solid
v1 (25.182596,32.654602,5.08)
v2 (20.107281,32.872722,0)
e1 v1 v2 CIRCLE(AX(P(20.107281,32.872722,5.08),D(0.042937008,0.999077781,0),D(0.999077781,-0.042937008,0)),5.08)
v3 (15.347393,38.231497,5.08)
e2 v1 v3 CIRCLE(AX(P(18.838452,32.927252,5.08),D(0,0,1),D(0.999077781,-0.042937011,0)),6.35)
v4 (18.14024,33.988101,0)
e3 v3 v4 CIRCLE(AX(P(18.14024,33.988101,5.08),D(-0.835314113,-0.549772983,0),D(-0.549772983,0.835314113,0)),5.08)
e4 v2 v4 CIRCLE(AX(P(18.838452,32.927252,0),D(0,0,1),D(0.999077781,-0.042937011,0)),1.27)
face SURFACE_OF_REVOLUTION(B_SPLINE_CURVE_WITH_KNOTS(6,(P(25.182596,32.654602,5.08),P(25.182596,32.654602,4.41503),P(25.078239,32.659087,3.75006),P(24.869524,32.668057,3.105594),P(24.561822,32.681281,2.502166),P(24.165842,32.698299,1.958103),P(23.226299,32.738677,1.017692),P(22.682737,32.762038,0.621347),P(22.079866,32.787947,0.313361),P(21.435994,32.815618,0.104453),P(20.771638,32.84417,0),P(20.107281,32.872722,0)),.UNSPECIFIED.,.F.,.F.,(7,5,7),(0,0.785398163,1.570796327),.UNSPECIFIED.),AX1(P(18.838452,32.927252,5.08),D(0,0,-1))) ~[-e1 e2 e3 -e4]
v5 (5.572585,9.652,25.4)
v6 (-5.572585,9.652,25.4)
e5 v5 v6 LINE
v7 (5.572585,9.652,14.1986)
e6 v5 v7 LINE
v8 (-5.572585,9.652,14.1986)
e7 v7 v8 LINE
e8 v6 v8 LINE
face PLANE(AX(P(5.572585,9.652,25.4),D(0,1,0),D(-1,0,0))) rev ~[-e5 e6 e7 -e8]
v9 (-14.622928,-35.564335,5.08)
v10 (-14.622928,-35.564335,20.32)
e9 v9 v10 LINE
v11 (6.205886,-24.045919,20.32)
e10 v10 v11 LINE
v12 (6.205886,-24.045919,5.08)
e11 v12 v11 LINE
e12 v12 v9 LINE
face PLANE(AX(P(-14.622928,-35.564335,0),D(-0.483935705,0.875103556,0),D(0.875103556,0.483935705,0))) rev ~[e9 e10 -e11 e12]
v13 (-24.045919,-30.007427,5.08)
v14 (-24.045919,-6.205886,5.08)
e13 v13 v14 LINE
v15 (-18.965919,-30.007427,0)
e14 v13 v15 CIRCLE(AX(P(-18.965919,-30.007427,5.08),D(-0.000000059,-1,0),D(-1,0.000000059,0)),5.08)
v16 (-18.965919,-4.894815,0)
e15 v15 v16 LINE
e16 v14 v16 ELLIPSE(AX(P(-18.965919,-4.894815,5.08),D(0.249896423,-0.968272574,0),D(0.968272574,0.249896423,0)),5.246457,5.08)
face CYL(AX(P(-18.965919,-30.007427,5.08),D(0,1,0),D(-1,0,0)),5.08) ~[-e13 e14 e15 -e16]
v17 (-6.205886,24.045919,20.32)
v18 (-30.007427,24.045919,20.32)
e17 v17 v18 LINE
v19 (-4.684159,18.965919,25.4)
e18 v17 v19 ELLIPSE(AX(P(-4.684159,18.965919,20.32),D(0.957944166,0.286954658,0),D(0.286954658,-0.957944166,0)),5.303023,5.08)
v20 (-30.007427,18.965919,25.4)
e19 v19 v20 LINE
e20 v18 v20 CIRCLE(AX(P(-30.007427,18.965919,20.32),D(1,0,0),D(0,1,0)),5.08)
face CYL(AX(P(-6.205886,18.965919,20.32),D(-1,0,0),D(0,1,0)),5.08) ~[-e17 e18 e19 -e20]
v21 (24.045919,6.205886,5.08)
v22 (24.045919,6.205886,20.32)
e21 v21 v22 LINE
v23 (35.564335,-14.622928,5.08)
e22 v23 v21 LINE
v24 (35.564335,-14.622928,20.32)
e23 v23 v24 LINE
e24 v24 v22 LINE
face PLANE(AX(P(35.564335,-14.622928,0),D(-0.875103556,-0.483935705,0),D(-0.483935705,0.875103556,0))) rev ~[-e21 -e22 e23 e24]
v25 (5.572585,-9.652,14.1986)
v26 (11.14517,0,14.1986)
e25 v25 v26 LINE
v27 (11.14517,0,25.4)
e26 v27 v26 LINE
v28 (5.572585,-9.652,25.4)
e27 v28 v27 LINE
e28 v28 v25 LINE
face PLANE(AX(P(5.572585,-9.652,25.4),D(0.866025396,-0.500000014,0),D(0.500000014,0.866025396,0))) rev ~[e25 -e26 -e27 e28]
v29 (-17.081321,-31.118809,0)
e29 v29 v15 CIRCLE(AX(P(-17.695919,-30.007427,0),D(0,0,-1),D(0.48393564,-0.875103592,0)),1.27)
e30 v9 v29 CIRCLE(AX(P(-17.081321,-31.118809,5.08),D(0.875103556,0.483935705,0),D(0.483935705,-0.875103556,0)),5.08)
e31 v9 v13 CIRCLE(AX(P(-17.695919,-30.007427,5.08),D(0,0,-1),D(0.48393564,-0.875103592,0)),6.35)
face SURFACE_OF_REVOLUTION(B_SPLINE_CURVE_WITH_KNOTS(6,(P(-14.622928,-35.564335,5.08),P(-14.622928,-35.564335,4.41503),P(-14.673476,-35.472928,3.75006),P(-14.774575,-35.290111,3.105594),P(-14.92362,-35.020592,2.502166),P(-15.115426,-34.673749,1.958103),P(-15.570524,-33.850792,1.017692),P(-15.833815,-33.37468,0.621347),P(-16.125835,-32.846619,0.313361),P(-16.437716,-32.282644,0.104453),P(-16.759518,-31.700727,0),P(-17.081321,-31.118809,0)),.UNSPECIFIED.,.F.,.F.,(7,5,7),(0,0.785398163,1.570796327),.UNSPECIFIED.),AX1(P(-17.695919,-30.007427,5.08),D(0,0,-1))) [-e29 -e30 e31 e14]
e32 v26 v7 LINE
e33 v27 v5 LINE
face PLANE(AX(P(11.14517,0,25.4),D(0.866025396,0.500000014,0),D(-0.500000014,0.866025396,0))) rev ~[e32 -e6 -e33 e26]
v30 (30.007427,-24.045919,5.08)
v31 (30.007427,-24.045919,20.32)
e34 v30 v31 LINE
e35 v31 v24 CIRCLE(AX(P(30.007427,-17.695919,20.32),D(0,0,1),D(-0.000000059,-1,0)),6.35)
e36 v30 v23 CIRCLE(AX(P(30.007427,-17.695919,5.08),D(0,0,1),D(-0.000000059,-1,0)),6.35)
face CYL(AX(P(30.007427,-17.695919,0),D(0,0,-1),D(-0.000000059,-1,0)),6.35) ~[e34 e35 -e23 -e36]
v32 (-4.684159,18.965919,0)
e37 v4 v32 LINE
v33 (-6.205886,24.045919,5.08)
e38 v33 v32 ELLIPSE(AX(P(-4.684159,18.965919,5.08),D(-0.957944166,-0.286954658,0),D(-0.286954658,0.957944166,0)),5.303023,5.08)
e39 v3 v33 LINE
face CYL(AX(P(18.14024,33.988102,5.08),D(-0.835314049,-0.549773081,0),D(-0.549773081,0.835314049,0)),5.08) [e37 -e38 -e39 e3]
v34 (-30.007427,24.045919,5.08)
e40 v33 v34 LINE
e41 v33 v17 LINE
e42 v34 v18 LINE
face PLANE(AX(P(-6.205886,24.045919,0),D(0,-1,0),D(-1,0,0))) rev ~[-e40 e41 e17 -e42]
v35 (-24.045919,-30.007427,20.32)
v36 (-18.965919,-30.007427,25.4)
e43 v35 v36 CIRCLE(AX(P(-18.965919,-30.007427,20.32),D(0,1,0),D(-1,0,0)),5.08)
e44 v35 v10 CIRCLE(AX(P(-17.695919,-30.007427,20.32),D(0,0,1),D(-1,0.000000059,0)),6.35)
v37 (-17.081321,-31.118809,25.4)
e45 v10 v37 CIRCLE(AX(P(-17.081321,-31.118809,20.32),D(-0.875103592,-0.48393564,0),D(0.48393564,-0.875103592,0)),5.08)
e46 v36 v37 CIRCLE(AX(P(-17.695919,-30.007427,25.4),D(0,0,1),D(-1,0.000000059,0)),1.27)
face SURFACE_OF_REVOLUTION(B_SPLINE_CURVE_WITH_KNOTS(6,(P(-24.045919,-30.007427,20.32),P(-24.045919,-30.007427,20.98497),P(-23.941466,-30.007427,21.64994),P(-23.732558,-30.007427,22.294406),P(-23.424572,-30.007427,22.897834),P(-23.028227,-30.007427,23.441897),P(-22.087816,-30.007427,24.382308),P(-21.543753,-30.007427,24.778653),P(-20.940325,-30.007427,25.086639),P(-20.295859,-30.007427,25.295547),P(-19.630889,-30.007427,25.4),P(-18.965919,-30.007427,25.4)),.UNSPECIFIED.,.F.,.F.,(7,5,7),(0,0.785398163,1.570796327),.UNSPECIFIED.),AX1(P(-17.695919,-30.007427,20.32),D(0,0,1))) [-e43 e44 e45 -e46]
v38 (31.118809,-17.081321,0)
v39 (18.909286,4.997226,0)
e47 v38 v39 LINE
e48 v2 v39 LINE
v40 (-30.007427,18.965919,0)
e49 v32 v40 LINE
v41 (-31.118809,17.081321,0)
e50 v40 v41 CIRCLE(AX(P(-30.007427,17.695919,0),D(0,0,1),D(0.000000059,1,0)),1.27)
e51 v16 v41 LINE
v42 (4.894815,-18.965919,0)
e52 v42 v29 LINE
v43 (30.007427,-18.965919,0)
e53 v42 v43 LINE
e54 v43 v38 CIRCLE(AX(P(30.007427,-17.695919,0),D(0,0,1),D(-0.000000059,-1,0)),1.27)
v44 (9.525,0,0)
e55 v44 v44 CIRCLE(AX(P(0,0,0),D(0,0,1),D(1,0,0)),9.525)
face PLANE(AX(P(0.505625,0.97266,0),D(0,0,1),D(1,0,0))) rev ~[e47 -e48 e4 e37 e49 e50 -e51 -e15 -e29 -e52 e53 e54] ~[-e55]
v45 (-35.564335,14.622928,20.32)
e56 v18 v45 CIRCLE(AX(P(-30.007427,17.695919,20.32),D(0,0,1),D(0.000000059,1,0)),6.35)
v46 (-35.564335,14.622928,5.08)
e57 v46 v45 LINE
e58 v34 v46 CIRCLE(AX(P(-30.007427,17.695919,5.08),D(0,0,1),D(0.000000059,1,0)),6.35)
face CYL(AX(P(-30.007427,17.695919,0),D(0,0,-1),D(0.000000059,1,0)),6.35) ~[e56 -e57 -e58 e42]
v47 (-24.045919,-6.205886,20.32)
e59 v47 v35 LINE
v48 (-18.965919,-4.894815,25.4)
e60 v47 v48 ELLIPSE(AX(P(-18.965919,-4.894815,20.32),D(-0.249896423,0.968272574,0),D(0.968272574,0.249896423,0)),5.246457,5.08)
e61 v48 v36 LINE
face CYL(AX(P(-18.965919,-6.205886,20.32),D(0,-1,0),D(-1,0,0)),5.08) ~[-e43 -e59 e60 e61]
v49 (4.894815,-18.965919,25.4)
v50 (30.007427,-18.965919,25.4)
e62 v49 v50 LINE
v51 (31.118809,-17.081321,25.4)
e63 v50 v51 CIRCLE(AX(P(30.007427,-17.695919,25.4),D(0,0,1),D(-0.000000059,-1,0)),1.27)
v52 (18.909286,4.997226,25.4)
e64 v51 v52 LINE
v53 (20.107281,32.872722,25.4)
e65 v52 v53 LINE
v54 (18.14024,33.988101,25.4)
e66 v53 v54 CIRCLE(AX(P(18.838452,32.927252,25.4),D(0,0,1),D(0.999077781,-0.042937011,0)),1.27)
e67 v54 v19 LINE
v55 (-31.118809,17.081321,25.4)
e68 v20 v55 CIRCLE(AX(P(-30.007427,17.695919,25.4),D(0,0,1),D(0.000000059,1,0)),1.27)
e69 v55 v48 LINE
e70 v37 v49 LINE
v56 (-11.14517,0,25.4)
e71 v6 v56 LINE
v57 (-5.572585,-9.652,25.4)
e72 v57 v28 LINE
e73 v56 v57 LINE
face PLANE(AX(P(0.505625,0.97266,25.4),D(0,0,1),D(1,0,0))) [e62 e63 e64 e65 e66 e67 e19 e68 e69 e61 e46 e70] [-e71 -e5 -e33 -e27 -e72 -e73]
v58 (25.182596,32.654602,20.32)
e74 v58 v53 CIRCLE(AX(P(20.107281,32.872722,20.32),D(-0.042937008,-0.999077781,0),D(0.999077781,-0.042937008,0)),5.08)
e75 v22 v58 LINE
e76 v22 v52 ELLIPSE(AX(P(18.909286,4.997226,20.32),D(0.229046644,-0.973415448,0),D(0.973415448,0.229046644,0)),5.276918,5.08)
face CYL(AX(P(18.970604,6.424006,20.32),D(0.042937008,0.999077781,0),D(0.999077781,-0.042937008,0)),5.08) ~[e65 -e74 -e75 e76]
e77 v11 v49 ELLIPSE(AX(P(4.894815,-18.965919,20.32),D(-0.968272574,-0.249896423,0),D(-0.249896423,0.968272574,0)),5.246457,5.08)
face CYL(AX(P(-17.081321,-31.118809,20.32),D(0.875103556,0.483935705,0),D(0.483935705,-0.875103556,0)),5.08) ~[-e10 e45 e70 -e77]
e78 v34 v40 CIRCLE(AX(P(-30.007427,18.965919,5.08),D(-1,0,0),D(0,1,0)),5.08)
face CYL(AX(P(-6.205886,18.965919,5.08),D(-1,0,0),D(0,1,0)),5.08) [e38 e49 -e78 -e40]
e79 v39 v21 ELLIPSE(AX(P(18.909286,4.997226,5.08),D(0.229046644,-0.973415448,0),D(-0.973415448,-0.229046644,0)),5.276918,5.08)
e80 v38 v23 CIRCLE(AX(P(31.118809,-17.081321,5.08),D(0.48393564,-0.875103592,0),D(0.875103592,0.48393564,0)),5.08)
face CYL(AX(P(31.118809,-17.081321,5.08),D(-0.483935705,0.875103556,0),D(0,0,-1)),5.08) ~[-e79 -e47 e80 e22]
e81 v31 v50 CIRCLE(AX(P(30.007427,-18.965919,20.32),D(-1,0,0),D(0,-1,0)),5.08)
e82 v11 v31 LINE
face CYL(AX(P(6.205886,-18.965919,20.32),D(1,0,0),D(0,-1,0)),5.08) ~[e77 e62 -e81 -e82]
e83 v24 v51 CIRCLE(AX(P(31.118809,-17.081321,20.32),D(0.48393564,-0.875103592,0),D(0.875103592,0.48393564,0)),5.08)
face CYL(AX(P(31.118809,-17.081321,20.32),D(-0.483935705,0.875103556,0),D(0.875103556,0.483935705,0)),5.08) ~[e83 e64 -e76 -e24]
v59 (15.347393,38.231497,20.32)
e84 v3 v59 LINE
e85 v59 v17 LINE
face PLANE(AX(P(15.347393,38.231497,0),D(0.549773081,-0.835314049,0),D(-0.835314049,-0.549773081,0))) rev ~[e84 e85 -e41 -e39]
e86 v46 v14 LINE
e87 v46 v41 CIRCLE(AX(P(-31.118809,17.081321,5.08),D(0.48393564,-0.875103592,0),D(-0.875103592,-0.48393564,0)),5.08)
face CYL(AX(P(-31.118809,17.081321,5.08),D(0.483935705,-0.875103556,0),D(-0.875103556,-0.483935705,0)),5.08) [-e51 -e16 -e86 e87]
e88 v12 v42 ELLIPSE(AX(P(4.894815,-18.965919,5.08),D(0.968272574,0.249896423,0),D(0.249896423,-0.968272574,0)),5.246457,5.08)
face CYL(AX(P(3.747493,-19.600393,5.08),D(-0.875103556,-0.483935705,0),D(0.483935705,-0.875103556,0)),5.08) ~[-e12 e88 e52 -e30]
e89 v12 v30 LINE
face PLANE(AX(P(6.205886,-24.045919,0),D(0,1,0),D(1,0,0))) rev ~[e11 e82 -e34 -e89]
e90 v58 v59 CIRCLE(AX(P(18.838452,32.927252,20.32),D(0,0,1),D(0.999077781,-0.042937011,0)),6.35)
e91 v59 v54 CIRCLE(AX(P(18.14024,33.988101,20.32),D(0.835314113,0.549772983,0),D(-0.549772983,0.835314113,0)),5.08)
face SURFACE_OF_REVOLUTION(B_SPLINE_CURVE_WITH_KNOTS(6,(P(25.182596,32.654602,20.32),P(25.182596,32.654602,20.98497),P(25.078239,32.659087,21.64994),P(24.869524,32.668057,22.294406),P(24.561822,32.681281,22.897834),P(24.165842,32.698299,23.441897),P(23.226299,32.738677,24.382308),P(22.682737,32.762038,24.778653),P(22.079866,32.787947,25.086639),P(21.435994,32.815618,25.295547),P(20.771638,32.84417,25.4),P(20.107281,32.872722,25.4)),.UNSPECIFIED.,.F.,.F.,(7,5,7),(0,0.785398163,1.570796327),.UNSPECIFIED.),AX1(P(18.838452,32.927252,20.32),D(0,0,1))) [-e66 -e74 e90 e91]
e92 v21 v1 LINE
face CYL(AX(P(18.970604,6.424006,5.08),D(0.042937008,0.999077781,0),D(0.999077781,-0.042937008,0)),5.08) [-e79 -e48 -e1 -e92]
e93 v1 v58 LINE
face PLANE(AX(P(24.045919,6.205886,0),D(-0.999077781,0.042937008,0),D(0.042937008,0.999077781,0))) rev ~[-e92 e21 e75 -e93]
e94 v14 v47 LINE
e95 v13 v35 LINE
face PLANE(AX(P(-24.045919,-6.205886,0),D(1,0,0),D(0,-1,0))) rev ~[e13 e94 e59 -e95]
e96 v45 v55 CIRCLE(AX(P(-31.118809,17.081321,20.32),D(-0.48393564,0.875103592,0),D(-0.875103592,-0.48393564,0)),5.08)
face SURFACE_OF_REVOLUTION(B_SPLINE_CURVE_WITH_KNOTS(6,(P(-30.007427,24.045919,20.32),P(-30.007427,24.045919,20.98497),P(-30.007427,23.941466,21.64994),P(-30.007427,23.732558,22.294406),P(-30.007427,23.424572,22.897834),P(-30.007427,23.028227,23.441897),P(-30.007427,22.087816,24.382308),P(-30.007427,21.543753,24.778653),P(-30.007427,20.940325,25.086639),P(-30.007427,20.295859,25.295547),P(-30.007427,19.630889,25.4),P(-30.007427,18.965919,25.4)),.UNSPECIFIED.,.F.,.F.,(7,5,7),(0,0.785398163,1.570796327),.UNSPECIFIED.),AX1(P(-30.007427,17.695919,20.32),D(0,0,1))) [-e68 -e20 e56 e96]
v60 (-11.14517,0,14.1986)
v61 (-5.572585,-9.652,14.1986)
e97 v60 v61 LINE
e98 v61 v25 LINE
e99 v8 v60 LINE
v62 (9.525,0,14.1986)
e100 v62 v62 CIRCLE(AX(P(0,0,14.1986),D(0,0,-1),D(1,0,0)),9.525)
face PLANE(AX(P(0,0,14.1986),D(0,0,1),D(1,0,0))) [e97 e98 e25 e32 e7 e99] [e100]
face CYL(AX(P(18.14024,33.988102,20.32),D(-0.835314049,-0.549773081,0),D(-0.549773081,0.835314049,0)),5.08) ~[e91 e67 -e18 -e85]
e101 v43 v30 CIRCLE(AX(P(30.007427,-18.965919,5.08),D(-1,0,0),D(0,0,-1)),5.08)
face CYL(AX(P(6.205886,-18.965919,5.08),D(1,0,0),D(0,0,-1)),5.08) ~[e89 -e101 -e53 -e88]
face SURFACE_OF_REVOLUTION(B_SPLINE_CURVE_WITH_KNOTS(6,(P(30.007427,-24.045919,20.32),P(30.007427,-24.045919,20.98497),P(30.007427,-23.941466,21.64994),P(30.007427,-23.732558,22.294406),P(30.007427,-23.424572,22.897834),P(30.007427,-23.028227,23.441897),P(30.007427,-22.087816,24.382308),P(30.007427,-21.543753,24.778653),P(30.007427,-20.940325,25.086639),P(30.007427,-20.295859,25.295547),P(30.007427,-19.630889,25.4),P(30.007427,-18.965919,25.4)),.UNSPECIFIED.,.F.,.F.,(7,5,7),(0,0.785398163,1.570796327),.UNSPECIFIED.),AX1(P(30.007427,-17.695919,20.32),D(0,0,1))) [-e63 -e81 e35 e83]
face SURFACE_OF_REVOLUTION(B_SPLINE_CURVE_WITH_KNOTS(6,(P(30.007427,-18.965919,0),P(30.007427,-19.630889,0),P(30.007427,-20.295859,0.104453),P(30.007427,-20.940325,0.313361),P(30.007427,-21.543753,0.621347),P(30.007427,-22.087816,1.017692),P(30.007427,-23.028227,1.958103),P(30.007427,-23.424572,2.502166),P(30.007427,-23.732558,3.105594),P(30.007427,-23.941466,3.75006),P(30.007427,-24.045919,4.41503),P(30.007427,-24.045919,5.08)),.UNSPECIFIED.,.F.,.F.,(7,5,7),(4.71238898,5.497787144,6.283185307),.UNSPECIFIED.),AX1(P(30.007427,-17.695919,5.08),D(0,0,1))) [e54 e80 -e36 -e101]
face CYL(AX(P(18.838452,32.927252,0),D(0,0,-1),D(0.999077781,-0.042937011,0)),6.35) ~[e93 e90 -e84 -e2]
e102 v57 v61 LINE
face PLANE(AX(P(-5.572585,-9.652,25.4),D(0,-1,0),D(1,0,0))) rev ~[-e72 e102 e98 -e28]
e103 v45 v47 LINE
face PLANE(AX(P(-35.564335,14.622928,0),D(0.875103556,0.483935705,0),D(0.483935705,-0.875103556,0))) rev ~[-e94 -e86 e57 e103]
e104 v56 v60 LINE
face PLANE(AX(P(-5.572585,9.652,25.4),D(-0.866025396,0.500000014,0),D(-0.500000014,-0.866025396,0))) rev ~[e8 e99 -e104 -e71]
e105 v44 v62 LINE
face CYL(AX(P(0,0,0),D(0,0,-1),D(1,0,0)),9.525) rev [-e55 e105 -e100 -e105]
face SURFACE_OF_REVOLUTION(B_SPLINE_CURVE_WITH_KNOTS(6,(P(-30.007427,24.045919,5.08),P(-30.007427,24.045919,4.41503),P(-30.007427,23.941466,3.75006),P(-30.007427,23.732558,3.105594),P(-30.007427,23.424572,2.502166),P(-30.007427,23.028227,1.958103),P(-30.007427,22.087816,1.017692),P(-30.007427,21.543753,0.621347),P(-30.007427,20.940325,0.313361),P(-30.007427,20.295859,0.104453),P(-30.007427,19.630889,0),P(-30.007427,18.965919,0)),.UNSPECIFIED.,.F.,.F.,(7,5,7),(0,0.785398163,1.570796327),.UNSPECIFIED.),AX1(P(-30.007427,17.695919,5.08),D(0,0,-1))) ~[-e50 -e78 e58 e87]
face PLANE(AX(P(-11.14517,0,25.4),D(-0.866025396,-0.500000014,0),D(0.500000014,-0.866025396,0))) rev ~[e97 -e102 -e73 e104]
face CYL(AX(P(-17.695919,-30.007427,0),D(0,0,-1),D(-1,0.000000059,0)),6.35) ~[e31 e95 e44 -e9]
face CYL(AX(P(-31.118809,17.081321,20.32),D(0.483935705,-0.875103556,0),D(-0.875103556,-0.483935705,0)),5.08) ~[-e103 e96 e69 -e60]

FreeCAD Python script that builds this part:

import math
import FreeCAD as App
import Part
import Sketcher

V = App.Vector
Q = App.Units.Quantity


def edges_at(feature, points):
    """Names of the edges that pass closest to the given points."""
    edges = feature.Shape.Edges
    near = lambda p: min(range(len(edges)), key=lambda i: edges[i].distToShape(Part.Vertex(*p))[0])
    return sorted({f"Edge{near(p) + 1}" for p in points})


def add_polygon(sketch, points):
    """Adds a closed chain of lines whose ends are joined by coincident constraints."""
    first, n = sketch.GeometryCount, len(points)
    for a, b in zip(points, points[1:] + points[:1]):
        sketch.addGeometry(Part.LineSegment(App.Vector(*a, 0), App.Vector(*b, 0)), False)
    for i in range(n):
        sketch.addConstraint(Sketcher.Constraint("Coincident", first + i, 2, first + (i + 1) % n, 1))

doc = App.newDocument("Part")
body = doc.addObject("PartDesign::Body", "Body")

sketch1 = doc.addObject("Sketcher::SketchObject", "Sketch")
body.addObject(sketch1)
sketch1.AttachmentSupport = (doc.XY_Plane, [""])
sketch1.MapMode = "FlatFace"
sketch1.addGeometry([
    Part.LineSegment(V(15.347393, 38.231497, 0), V(-6.205886, 24.045919, 0)),
    Part.LineSegment(V(-6.205886, 24.045919, 0), V(-30.007427, 24.045919, 0)),
    Part.ArcOfCircle(Part.Circle(V(-30.007427, 17.695919, 0), V(0, 0, 1), 6.35), math.radians(89.999997), math.radians(208.942762)),
    Part.LineSegment(V(-35.564335, 14.622928, 0), V(-24.045919, -6.205886, 0)),
    Part.LineSegment(V(-24.045919, -6.205886, 0), V(-24.045919, -30.007427, 0)),
    Part.ArcOfCircle(Part.Circle(V(-17.695919, -30.007427, 0), V(0, 0, 1), 6.35), math.radians(179.999997), math.radians(298.942762)),
    Part.LineSegment(V(-14.622928, -35.564335, 0), V(6.205886, -24.045919, 0)),
    Part.LineSegment(V(6.205886, -24.045919, 0), V(30.007427, -24.045919, 0)),
    Part.ArcOfCircle(Part.Circle(V(30.007427, -17.695919, 0), V(0, 0, 1), 6.35), math.radians(-90.000003), math.radians(28.942762)),
    Part.LineSegment(V(35.564335, -14.622928, 0), V(24.045919, 6.205886, 0)),
    Part.LineSegment(V(24.045919, 6.205886, 0), V(25.182596, 32.654602, 0)),
    Part.ArcOfCircle(Part.Circle(V(18.838452, 32.927252, 0), V(0, 0, 1), 6.35), math.radians(-2.460866), math.radians(123.35144)),
    Part.Circle(V(0, 0, 0), V(0, 0, 1), 9.525),
], False)
sketch1.addConstraint([
    Sketcher.Constraint("Coincident", 0, 2, 1, 1),
    Sketcher.Constraint("Tangent", 1, 2, 2, 1),
    Sketcher.Constraint("Tangent", 2, 2, 3, 1),
    Sketcher.Constraint("Coincident", 3, 2, 4, 1),
    Sketcher.Constraint("Tangent", 4, 2, 5, 1),
    Sketcher.Constraint("Tangent", 5, 2, 6, 1),
    Sketcher.Constraint("Coincident", 6, 2, 7, 1),
    Sketcher.Constraint("Tangent", 7, 2, 8, 1),
    Sketcher.Constraint("Tangent", 8, 2, 9, 1),
    Sketcher.Constraint("Coincident", 9, 2, 10, 1),
    Sketcher.Constraint("Tangent", 10, 2, 11, 1),
    Sketcher.Constraint("Tangent", 11, 2, 0, 1),
    Sketcher.Constraint("Horizontal", 1),
    Sketcher.Constraint("Vertical", 4),
    Sketcher.Constraint("Horizontal", 7),
    Sketcher.Constraint("Coincident", 12, 3, -1, 1),
    Sketcher.Constraint("Equal", 2, 5),
    Sketcher.Constraint("Equal", 5, 8),
    Sketcher.Constraint("Equal", 8, 11),
    Sketcher.Constraint("Symmetric", 2, 3, 8, 3, -1, 1),
    Sketcher.Constraint("Symmetric", 3, 2, 9, 2, -1, 1),
    Sketcher.Constraint("Perpendicular", 3, 6),
    Sketcher.Constraint("Equal", 1, 7),
    Sketcher.Constraint("Equal", 7, 4),
    Sketcher.Constraint("Equal", 3, 6),
    Sketcher.Constraint("Diameter", 12, Q("0.75 in")),
    Sketcher.Constraint("Radius", 2, Q("0.25 in")),
    Sketcher.Constraint("DistanceX", 1, 2, 1, 1, Q("23.801541 mm")),
    Sketcher.Constraint("DistanceY", -1, 1, 10, 2, Q("32.654602 mm")),
    Sketcher.Constraint("Distance", 3, Q("23.801542 mm")),
    Sketcher.Constraint("Distance", 10, Q("26.47313 mm")),
    Sketcher.Constraint("DistanceY", -1, 1, 2, 3, Q("17.695919 mm")),
])
pad1 = doc.addObject("PartDesign::Pad", "Pad")
body.addObject(pad1)
pad1.Profile = sketch1
pad1.Length = Q("1 in")
doc.recompute()

fillet = doc.addObject("PartDesign::Fillet", "Fillet")
body.addObject(fillet)
fillet.Base = (pad1, edges_at(pad1, [(-29.805, 4.209, 0), (4.571, 31.139, 0)]))
fillet.Radius = Q("0.2 in")
doc.recompute()

fillet2 = doc.addObject("PartDesign::Fillet", "Fillet001")
body.addObject(fillet2)
fillet2.Base = (fillet, edges_at(fillet, [
    (-24.046, -12.858, 0),
    (4.571, 31.139, 25.4),
    (-18.107, 24.046, 25.4),
    (-24.046, -18.107, 25.4),
    (18.107, -24.046, 25.4),
    (18.107, -24.046, 0),
]))
fillet2.Radius = Q("0.2 in")

sketch2 = doc.addObject("Sketcher::SketchObject", "Sketch001")
body.addObject(sketch2)
sketch2.AttachmentSupport = (doc.XY_Plane, [""])
sketch2.MapMode = "FlatFace"
sketch2.AttachmentOffset = App.Placement(V(0, 0, 1 * 25.4), App.Rotation())
add_polygon(sketch2, [(-5.572585, -9.652), (5.572585, -9.652), (11.14517, 0), (5.572585, 9.652), (-5.572585, 9.652), (-11.14517, 0)])
sketch2.addConstraint([
    Sketcher.Constraint("Horizontal", 0),
    Sketcher.Constraint("Horizontal", 3),
    Sketcher.Constraint("Symmetric", 0, 2, 3, 2, -1, 1),
    Sketcher.Constraint("Symmetric", 1, 2, 4, 2, -1, 1),
    Sketcher.Constraint("PointOnObject", 1, 2, -1),
    Sketcher.Constraint("Parallel", 2, 5),
    Sketcher.Constraint("Vertical", 0, 2, 2, 2),
    Sketcher.Constraint("Angle", 1, Q("59.999999 deg")),
    Sketcher.Constraint("DistanceY", 0, 2, -1, 1, Q("0.38 in")),
    Sketcher.Constraint("DistanceX", 0, 1, 0, 2, Q("11.14517 mm")),
])
pocket1 = doc.addObject("PartDesign::Pocket", "Pocket")
body.addObject(pocket1)
pocket1.Profile = sketch2
pocket1.Length = Q("0.441 in")

doc.recompute()
